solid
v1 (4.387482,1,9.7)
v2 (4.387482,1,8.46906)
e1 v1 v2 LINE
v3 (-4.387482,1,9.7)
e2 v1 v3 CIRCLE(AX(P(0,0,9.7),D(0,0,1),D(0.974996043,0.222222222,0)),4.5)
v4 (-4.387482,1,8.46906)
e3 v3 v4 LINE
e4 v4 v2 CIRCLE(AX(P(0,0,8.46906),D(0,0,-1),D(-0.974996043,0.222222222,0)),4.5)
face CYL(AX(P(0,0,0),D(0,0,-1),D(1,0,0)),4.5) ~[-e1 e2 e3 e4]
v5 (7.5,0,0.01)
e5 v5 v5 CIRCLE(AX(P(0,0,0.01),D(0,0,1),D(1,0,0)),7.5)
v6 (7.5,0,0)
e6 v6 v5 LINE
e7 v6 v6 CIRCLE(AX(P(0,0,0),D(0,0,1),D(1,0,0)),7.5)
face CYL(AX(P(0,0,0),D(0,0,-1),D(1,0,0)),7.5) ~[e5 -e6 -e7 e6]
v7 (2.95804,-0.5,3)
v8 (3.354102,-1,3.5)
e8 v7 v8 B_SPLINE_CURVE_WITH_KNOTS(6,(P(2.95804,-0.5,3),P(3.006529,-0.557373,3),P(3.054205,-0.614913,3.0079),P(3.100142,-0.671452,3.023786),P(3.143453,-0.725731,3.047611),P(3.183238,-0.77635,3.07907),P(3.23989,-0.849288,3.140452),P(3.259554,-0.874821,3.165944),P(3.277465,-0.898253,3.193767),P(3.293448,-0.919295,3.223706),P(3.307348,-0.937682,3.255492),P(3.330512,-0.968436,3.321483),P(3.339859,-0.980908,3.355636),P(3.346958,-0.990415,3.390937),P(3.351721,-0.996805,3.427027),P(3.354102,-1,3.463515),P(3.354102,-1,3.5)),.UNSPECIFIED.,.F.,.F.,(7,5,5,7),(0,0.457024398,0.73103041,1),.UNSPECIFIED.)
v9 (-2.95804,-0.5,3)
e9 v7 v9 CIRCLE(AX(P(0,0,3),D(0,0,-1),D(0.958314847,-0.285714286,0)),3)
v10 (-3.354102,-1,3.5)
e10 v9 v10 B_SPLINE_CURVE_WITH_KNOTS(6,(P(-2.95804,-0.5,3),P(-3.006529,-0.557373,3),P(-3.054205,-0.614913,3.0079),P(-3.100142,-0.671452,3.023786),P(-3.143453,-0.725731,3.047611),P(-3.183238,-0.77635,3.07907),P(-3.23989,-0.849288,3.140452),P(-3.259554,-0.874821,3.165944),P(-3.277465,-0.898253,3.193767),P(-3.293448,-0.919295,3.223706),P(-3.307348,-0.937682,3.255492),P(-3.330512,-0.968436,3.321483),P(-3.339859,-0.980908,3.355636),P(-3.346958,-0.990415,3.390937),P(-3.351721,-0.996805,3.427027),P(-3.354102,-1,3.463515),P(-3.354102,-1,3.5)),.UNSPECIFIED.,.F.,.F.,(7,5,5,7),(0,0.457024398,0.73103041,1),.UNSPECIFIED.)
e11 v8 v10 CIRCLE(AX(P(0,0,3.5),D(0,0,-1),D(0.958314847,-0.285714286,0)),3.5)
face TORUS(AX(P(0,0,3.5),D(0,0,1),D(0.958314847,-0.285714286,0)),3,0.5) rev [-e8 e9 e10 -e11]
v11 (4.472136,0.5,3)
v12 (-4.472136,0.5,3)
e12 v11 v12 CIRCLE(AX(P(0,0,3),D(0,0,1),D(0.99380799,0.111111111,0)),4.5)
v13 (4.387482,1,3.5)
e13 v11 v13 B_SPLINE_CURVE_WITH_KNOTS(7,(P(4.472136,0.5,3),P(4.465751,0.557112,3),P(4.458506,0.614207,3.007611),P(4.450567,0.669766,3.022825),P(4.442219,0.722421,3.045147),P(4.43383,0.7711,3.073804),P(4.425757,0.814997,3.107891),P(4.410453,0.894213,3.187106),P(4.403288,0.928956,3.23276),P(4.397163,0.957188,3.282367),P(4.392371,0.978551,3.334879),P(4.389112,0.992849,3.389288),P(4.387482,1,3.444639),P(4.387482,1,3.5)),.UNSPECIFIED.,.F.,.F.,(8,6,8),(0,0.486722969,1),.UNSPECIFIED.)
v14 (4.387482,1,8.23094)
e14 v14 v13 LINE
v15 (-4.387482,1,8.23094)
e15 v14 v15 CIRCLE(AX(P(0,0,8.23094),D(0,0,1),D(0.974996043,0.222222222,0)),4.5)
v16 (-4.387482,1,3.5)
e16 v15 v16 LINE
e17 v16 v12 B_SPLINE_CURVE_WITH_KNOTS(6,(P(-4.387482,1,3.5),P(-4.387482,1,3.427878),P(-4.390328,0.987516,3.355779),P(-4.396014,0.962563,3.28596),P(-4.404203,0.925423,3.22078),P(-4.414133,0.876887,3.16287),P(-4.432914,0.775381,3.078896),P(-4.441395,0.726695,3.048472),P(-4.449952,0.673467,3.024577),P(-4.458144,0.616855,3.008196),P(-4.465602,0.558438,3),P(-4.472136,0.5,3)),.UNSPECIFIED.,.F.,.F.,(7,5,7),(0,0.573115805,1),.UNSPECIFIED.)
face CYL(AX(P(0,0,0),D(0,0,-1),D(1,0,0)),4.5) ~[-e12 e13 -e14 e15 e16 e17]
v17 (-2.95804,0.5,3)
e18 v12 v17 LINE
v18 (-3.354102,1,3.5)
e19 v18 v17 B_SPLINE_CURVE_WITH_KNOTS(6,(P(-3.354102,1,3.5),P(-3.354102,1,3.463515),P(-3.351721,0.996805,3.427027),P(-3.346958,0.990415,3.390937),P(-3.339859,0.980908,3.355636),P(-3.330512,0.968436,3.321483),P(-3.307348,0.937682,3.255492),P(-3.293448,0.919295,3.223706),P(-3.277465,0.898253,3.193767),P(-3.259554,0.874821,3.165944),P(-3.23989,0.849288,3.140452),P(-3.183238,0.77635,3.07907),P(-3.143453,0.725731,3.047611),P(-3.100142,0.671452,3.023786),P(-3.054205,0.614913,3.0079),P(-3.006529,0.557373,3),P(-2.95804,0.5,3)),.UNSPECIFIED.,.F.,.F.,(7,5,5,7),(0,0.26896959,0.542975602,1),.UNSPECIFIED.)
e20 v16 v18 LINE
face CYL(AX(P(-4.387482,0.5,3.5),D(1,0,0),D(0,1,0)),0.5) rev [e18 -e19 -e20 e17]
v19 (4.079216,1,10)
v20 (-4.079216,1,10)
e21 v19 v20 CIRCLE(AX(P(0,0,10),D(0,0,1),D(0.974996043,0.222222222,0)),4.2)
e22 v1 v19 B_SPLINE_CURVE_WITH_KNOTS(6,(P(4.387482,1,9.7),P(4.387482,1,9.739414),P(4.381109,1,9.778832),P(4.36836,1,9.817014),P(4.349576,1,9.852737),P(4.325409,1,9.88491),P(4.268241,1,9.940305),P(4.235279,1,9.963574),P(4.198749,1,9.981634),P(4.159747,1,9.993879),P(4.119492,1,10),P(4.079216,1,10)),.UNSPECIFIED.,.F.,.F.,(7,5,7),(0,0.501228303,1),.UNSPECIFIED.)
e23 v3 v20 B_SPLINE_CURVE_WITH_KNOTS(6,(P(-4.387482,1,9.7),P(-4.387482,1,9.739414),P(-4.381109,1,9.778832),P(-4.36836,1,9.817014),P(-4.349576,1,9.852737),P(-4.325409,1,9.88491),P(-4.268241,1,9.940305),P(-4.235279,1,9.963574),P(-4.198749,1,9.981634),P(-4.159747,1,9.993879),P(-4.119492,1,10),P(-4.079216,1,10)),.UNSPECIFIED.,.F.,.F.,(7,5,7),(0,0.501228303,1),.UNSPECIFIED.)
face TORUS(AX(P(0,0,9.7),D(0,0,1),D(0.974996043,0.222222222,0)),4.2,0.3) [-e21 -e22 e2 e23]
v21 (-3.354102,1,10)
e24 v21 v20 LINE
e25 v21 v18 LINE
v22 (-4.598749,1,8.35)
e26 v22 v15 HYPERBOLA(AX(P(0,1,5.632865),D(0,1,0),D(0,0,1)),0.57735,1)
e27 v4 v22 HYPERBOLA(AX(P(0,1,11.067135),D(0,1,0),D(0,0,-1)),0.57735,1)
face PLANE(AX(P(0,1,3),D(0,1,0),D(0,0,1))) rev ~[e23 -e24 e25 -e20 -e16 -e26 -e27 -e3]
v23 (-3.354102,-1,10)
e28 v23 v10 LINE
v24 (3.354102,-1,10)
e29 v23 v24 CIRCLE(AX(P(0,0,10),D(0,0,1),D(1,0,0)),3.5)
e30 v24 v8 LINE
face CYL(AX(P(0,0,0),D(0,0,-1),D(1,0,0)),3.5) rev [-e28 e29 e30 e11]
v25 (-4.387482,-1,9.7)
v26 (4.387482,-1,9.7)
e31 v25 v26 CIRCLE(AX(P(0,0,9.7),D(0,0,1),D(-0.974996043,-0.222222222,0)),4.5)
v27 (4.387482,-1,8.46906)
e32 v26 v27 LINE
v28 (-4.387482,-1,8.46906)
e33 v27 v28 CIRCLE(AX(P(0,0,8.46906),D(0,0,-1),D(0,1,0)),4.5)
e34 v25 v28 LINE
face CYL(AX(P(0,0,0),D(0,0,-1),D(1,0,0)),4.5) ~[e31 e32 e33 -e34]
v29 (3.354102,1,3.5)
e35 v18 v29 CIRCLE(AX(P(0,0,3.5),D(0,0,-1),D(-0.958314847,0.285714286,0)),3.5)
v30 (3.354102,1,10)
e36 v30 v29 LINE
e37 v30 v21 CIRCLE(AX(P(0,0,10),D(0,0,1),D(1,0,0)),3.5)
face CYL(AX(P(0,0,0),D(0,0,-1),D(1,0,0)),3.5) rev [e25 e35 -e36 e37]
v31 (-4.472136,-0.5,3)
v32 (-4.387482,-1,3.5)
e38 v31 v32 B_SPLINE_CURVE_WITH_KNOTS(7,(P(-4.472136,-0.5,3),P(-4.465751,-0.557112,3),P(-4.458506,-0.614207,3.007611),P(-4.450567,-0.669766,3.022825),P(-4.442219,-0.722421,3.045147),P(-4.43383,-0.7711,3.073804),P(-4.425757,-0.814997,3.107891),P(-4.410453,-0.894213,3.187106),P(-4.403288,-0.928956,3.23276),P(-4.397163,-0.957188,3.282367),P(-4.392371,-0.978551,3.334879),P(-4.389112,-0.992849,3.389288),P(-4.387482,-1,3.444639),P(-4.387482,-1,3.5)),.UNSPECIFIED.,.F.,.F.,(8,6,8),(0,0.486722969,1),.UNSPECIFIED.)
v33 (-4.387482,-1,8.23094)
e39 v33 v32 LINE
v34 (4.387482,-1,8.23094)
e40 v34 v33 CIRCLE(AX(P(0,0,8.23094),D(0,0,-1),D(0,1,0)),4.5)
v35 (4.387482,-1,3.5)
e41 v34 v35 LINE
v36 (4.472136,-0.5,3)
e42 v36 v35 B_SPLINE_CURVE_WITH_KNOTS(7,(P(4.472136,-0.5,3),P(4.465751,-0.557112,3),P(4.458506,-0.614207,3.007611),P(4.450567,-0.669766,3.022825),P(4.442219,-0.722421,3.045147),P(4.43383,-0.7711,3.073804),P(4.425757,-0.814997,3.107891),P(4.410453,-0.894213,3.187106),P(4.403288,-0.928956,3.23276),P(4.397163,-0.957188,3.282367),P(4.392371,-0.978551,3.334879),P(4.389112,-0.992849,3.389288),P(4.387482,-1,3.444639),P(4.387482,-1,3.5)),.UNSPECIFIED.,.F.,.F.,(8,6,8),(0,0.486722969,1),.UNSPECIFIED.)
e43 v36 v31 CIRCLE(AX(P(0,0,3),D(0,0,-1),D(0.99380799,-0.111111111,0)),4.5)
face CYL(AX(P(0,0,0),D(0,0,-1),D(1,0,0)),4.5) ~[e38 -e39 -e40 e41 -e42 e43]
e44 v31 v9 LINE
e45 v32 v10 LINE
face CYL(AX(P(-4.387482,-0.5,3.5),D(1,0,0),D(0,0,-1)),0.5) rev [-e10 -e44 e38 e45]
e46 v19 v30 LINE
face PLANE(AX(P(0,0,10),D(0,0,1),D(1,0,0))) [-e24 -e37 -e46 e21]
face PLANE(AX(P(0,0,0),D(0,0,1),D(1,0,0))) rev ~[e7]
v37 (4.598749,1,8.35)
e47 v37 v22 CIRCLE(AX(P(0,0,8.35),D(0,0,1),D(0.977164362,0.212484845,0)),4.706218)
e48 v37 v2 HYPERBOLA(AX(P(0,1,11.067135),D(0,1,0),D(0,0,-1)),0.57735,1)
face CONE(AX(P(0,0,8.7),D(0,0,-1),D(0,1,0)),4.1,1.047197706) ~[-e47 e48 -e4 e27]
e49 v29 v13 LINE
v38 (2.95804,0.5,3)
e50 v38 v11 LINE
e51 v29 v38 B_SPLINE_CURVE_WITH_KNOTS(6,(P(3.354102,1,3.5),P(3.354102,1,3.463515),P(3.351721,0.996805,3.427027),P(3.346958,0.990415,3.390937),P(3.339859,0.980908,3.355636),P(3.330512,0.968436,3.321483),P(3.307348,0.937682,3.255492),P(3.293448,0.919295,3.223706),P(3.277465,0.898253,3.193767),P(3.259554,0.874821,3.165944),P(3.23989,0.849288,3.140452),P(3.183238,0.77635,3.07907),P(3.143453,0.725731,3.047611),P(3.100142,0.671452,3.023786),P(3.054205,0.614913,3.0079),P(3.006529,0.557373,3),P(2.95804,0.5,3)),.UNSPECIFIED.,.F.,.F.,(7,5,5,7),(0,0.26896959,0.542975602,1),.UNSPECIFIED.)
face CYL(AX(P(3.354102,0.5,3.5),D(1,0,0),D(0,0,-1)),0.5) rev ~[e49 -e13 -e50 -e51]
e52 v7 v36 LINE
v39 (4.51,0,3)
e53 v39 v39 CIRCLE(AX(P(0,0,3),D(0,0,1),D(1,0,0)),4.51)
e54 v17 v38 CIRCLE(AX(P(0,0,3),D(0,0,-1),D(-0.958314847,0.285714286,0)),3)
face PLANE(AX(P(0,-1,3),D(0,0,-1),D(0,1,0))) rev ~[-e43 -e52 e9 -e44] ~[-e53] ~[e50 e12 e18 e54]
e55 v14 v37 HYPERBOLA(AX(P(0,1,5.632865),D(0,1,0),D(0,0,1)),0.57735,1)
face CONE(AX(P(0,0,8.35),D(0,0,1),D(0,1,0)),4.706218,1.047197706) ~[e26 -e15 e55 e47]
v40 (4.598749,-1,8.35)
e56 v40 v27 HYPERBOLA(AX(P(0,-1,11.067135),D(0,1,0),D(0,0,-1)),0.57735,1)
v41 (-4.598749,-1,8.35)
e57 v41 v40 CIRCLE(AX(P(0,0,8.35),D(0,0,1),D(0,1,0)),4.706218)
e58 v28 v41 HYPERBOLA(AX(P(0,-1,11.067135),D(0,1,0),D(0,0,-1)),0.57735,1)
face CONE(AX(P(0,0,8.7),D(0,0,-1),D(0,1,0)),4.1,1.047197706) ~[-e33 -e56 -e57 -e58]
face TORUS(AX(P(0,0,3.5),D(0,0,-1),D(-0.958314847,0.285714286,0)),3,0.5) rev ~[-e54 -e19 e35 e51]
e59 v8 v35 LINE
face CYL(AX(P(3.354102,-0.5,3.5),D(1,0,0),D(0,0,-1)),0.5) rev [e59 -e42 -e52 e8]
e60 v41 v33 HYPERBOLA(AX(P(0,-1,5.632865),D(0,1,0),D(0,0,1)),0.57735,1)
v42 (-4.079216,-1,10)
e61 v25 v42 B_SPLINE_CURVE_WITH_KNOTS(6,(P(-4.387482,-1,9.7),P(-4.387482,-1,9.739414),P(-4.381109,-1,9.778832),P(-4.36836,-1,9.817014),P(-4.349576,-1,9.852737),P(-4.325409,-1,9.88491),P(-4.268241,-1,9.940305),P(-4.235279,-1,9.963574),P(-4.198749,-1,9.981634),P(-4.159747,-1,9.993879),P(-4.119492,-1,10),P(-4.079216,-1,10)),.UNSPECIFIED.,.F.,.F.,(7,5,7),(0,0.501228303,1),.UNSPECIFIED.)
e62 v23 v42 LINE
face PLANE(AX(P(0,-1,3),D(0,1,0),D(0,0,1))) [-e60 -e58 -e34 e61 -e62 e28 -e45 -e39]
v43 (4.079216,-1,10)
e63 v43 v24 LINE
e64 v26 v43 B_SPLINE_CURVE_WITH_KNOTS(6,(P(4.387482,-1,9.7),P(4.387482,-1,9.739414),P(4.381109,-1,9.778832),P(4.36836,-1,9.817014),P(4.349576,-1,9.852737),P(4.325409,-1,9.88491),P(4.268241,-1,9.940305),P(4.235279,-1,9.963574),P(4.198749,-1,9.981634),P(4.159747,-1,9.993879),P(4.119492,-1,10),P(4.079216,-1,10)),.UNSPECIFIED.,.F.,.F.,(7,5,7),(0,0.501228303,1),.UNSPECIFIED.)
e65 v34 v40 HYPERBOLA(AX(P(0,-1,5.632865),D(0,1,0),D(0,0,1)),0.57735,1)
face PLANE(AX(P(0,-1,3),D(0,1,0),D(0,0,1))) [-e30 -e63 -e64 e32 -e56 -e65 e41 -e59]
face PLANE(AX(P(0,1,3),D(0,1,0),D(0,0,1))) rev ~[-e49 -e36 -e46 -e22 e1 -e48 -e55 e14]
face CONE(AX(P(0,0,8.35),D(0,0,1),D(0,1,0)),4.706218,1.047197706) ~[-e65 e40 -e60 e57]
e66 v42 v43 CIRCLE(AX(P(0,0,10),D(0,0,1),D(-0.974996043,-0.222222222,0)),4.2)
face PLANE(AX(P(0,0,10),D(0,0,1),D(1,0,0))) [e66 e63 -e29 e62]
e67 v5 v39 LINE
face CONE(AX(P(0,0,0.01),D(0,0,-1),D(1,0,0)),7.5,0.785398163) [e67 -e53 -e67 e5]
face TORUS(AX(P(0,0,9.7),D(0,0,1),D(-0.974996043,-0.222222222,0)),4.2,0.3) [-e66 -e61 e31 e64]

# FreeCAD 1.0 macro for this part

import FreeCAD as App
import Part
import Sketcher

V = App.Vector
Q = App.Units.Quantity


def edges_at(feature, points):
    """Names of the edges that pass closest to the given points."""
    edges = feature.Shape.Edges
    near = lambda p: min(range(len(edges)), key=lambda i: edges[i].distToShape(Part.Vertex(*p))[0])
    return sorted({f"Edge{near(p) + 1}" for p in points})


def add_polygon(sketch, points):
    """Adds a closed chain of lines whose ends are joined by coincident constraints."""
    first, n = sketch.GeometryCount, len(points)
    for a, b in zip(points, points[1:] + points[:1]):
        sketch.addGeometry(Part.LineSegment(App.Vector(*a, 0), App.Vector(*b, 0)), False)
    for i in range(n):
        sketch.addConstraint(Sketcher.Constraint("Coincident", first + i, 2, first + (i + 1) % n, 1))

doc = App.newDocument("Part")
body = doc.addObject("PartDesign::Body", "Body")

# Sketch on XY plane
sketch1 = body.newObject("Sketcher::SketchObject", "Sketch")
sketch1.AttachmentSupport = (doc.getObject("XY_Plane"), [""])
sketch1.MapMode = "FlatFace"
sketch1.addGeometry(Part.Circle(V(0, 0, 0), V(0, 0, 1), 4.5), False)
sketch1.addGeometry(Part.Circle(V(0, 0, 0), V(0, 0, 1), 3.5), False)
sketch1.addConstraint(Sketcher.Constraint("Coincident", 0, 3, -1, 1))
sketch1.addConstraint(Sketcher.Constraint("Coincident", 1, 3, -1, 1))
sketch1.addConstraint(Sketcher.Constraint("Diameter", 0, Q("9 mm")))
sketch1.addConstraint(Sketcher.Constraint("Diameter", 1, Q("7 mm")))
pad1 = body.newObject("PartDesign::Pad", "Pad")
pad1.Profile = sketch1
pad1.Length = 10

# Sketch on XY plane
sketch2 = body.newObject("Sketcher::SketchObject", "Sketch001")
sketch2.AttachmentSupport = (doc.getObject("XY_Plane"), [""])
sketch2.MapMode = "FlatFace"
sketch2.addGeometry(Part.Circle(V(0, 0, 0), V(0, 0, 1), 8), False)
sketch2.addConstraint(Sketcher.Constraint("Coincident", 0, 3, -1, 1))
sketch2.addConstraint(Sketcher.Constraint("Diameter", 0, Q("15 mm")))
pad2 = body.newObject("PartDesign::Pad", "Pad001")
pad2.Profile = sketch2
pad2.Length = 3
doc.recompute()

chamfer = body.newObject("PartDesign::Chamfer", "Chamfer")
chamfer.Base = (pad2, edges_at(pad2, [(-7.5, 0, 3)]))
chamfer.Size = 2.99

# Sketch on YZ plane
sketch3 = body.newObject("Sketcher::SketchObject", "Sketch002")
sketch3.AttachmentSupport = (doc.getObject("YZ_Plane"), [""])
sketch3.MapMode = "FlatFace"
add_polygon(sketch3, [(4.7, 8.3), (4.1, 8.7), (4.1, 8)])  # lines 0-2
sketch3.addConstraint(Sketcher.Constraint("Vertical", 1))
sketch3.addConstraint(Sketcher.Constraint("Equal", 0, 2))
sketch3.addConstraint(Sketcher.Constraint("Angle", 0, Q("150.000009 deg")))
sketch3.addConstraint(Sketcher.Constraint("DistanceY", 1, 2, 1, 1, Q("0.7 mm")))
sketch3.addConstraint(Sketcher.Constraint("DistanceY", -1, 1, 1, 2, Q("8 mm")))
sketch3.addConstraint(Sketcher.Constraint("DistanceX", -1, 1, 0, 2, Q("4.1 mm")))
revolution = body.newObject("PartDesign::Revolution", "Revolution")
revolution.Profile = sketch3
revolution.ReferenceAxis = (sketch3, ["V_Axis"])
revolution.Angle = 360

# Sketch on YZ plane
sketch4 = body.newObject("Sketcher::SketchObject", "Sketch003")
sketch4.AttachmentSupport = (doc.getObject("YZ_Plane"), [""])
sketch4.MapMode = "FlatFace"
add_polygon(sketch4, [(-1, 13), (-1, 3), (1, 3), (1, 13)])  # lines 0-3
sketch4.addConstraint(Sketcher.Constraint("Vertical", 0))
sketch4.addConstraint(Sketcher.Constraint("Horizontal", 1))
sketch4.addConstraint(Sketcher.Constraint("Vertical", 2))
sketch4.addConstraint(Sketcher.Constraint("Horizontal", 3))
sketch4.addConstraint(Sketcher.Constraint("DistanceX", 1, 1, 1, 2, Q("2 mm")))
sketch4.addConstraint(Sketcher.Constraint("DistanceY", 0, 2, 0, 1, Q("10 mm")))
sketch4.addConstraint(Sketcher.Constraint("DistanceX", 0, 2, -1, 1, Q("1 mm")))
sketch4.addConstraint(Sketcher.Constraint("DistanceY", -1, 1, 0, 2, Q("3 mm")))
pocket1 = body.newObject("PartDesign::Pocket", "Pocket")
pocket1.Profile = sketch4
pocket1.Length = 12
pocket1.Midplane = True
doc.recompute()

fillet = body.newObject("PartDesign::Fillet", "Fillet")
fillet.Base = (pocket1, edges_at(pocket1, [
    (0, -3.5, 3),
    (0, 3.5, 3),
    (3.871, 1, 3),
    (-3.871, 1, 3),
    (3.871, -1, 3),
    (-3.871, -1, 3),
]))
fillet.Radius = 0.5
doc.recompute()

fillet2 = body.newObject("PartDesign::Fillet", "Fillet001")
fillet2.Base = (fillet, edges_at(fillet, [(0, 4.5, 10), (0, -4.5, 10)]))
fillet2.Radius = 0.3

doc.recompute()
